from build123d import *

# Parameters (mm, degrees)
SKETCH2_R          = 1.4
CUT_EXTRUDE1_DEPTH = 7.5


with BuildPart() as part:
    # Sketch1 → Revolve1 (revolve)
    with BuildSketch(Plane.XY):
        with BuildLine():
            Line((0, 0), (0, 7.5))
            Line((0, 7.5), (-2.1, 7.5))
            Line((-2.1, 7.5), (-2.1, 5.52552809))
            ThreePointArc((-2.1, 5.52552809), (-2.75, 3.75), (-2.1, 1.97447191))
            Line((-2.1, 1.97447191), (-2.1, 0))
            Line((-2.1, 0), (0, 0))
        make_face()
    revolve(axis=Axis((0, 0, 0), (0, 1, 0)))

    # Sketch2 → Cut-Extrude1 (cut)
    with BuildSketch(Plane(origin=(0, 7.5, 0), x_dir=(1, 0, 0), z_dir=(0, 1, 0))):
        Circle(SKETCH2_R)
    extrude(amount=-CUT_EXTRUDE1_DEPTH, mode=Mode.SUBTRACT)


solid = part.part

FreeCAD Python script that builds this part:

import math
import FreeCAD as App
import Part
import Sketcher
from FreeCAD import Vector

doc = App.newDocument("Part")
params = doc.addObject("Spreadsheet::Sheet", "Params")
for row, (alias, value) in enumerate([
    ("sketch1_radius", "2.75 mm"),
    ("sketch1_width", "2.1 mm"),
    ("sketch1_height", "7.5 mm"),
    ("revolution_angle", "360 deg"),
    ("sketch2_diameter", "2.8 mm"),
    ("pocket1_length", "7.5 mm"),
], start=1):
    params.set(f"A{row}", alias)
    params.set(f"B{row}", "=" + value)
    params.setAlias(f"B{row}", alias)

body = doc.addObject("PartDesign::Body", "Body")

# Sketch on XY plane
sketch1 = body.newObject("Sketcher::SketchObject", "Sketch")
sketch1.AttachmentSupport = (doc.getObject("XY_Plane"), [""])
sketch1.MapMode = "FlatFace"
sketch1.addGeometry(Part.LineSegment(Vector(0, 0, 0), Vector(0, 7.5, 0)), False)
sketch1.addGeometry(Part.LineSegment(Vector(0, 7.5, 0), Vector(-2.1, 7.5, 0)), False)
sketch1.addGeometry(Part.LineSegment(Vector(-2.1, 7.5, 0), Vector(-2.1, 5.5, 0)), False)
sketch1.addGeometry(Part.ArcOfCircle(Part.Circle(Vector(0, 3.8, 0), Vector(0, 0, 1), 2.7), math.radians(140), math.radians(220)), False)
sketch1.addGeometry(Part.LineSegment(Vector(-2.1, 2, 0), Vector(-2.1, 0, 0)), False)
sketch1.addGeometry(Part.LineSegment(Vector(-2.1, 0, 0), Vector(0, 0, 0)), False)
sketch1.addConstraint(Sketcher.Constraint("Coincident", 0, 2, 1, 1))
sketch1.addConstraint(Sketcher.Constraint("Coincident", 1, 2, 2, 1))
sketch1.addConstraint(Sketcher.Constraint("Coincident", 2, 2, 3, 1))
sketch1.addConstraint(Sketcher.Constraint("Coincident", 3, 2, 4, 1))
sketch1.addConstraint(Sketcher.Constraint("Coincident", 4, 2, 5, 1))
sketch1.addConstraint(Sketcher.Constraint("Coincident", 5, 2, 0, 1))
sketch1.addConstraint(Sketcher.Constraint("Vertical", 0))
sketch1.addConstraint(Sketcher.Constraint("Horizontal", 1))
sketch1.addConstraint(Sketcher.Constraint("Vertical", 2))
sketch1.addConstraint(Sketcher.Constraint("Vertical", 4))
sketch1.addConstraint(Sketcher.Constraint("Horizontal", 5))
sketch1.addConstraint(Sketcher.Constraint("Coincident", 5, 2, -1, 1))
sketch1.addConstraint(Sketcher.Constraint("PointOnObject", 3, 3, -2))
sketch1.addConstraint(Sketcher.Constraint("Vertical", 2, 2, 3, 2))
sketch1.addConstraint(Sketcher.Constraint("Equal", 2, 4))
sketch1.addConstraint(Sketcher.Constraint("Radius", 3, 2.75))
sketch1.addConstraint(Sketcher.Constraint("DistanceX", 1, 2, 1, 1, 2.1))
sketch1.addConstraint(Sketcher.Constraint("DistanceY", 0, 1, 0, 2, 7.5))
sketch1.setExpression("Constraints[15]", "Params.sketch1_radius")
sketch1.setExpression("Constraints[16]", "Params.sketch1_width")
sketch1.setExpression("Constraints[17]", "Params.sketch1_height")
revolution = body.newObject("PartDesign::Revolution", "Revolution")
revolution.Profile = sketch1
revolution.ReferenceAxis = (sketch1, ["V_Axis"])
revolution.setExpression("Angle", "Params.revolution_angle")

# Sketch on XZ plane
sketch2 = body.newObject("Sketcher::SketchObject", "Sketch001")
sketch2.AttachmentSupport = (doc.getObject("XZ_Plane"), [""])
sketch2.MapMode = "FlatFace"
sketch2.AttachmentOffset = App.Placement(Vector(0, 0, -7.5), App.Rotation())
sketch2.addGeometry(Part.Circle(Vector(0, 0, 0), Vector(0, 0, 1), 1.4), False)
sketch2.addConstraint(Sketcher.Constraint("Coincident", 0, 3, -1, 1))
sketch2.addConstraint(Sketcher.Constraint("Diameter", 0, 2.8))
sketch2.setExpression("Constraints[1]", "Params.sketch2_diameter")
pocket1 = body.newObject("PartDesign::Pocket", "Pocket")
pocket1.Profile = sketch2
pocket1.setExpression("Length", "Params.pocket1_length")
pocket1.Reversed = True

doc.recompute()
